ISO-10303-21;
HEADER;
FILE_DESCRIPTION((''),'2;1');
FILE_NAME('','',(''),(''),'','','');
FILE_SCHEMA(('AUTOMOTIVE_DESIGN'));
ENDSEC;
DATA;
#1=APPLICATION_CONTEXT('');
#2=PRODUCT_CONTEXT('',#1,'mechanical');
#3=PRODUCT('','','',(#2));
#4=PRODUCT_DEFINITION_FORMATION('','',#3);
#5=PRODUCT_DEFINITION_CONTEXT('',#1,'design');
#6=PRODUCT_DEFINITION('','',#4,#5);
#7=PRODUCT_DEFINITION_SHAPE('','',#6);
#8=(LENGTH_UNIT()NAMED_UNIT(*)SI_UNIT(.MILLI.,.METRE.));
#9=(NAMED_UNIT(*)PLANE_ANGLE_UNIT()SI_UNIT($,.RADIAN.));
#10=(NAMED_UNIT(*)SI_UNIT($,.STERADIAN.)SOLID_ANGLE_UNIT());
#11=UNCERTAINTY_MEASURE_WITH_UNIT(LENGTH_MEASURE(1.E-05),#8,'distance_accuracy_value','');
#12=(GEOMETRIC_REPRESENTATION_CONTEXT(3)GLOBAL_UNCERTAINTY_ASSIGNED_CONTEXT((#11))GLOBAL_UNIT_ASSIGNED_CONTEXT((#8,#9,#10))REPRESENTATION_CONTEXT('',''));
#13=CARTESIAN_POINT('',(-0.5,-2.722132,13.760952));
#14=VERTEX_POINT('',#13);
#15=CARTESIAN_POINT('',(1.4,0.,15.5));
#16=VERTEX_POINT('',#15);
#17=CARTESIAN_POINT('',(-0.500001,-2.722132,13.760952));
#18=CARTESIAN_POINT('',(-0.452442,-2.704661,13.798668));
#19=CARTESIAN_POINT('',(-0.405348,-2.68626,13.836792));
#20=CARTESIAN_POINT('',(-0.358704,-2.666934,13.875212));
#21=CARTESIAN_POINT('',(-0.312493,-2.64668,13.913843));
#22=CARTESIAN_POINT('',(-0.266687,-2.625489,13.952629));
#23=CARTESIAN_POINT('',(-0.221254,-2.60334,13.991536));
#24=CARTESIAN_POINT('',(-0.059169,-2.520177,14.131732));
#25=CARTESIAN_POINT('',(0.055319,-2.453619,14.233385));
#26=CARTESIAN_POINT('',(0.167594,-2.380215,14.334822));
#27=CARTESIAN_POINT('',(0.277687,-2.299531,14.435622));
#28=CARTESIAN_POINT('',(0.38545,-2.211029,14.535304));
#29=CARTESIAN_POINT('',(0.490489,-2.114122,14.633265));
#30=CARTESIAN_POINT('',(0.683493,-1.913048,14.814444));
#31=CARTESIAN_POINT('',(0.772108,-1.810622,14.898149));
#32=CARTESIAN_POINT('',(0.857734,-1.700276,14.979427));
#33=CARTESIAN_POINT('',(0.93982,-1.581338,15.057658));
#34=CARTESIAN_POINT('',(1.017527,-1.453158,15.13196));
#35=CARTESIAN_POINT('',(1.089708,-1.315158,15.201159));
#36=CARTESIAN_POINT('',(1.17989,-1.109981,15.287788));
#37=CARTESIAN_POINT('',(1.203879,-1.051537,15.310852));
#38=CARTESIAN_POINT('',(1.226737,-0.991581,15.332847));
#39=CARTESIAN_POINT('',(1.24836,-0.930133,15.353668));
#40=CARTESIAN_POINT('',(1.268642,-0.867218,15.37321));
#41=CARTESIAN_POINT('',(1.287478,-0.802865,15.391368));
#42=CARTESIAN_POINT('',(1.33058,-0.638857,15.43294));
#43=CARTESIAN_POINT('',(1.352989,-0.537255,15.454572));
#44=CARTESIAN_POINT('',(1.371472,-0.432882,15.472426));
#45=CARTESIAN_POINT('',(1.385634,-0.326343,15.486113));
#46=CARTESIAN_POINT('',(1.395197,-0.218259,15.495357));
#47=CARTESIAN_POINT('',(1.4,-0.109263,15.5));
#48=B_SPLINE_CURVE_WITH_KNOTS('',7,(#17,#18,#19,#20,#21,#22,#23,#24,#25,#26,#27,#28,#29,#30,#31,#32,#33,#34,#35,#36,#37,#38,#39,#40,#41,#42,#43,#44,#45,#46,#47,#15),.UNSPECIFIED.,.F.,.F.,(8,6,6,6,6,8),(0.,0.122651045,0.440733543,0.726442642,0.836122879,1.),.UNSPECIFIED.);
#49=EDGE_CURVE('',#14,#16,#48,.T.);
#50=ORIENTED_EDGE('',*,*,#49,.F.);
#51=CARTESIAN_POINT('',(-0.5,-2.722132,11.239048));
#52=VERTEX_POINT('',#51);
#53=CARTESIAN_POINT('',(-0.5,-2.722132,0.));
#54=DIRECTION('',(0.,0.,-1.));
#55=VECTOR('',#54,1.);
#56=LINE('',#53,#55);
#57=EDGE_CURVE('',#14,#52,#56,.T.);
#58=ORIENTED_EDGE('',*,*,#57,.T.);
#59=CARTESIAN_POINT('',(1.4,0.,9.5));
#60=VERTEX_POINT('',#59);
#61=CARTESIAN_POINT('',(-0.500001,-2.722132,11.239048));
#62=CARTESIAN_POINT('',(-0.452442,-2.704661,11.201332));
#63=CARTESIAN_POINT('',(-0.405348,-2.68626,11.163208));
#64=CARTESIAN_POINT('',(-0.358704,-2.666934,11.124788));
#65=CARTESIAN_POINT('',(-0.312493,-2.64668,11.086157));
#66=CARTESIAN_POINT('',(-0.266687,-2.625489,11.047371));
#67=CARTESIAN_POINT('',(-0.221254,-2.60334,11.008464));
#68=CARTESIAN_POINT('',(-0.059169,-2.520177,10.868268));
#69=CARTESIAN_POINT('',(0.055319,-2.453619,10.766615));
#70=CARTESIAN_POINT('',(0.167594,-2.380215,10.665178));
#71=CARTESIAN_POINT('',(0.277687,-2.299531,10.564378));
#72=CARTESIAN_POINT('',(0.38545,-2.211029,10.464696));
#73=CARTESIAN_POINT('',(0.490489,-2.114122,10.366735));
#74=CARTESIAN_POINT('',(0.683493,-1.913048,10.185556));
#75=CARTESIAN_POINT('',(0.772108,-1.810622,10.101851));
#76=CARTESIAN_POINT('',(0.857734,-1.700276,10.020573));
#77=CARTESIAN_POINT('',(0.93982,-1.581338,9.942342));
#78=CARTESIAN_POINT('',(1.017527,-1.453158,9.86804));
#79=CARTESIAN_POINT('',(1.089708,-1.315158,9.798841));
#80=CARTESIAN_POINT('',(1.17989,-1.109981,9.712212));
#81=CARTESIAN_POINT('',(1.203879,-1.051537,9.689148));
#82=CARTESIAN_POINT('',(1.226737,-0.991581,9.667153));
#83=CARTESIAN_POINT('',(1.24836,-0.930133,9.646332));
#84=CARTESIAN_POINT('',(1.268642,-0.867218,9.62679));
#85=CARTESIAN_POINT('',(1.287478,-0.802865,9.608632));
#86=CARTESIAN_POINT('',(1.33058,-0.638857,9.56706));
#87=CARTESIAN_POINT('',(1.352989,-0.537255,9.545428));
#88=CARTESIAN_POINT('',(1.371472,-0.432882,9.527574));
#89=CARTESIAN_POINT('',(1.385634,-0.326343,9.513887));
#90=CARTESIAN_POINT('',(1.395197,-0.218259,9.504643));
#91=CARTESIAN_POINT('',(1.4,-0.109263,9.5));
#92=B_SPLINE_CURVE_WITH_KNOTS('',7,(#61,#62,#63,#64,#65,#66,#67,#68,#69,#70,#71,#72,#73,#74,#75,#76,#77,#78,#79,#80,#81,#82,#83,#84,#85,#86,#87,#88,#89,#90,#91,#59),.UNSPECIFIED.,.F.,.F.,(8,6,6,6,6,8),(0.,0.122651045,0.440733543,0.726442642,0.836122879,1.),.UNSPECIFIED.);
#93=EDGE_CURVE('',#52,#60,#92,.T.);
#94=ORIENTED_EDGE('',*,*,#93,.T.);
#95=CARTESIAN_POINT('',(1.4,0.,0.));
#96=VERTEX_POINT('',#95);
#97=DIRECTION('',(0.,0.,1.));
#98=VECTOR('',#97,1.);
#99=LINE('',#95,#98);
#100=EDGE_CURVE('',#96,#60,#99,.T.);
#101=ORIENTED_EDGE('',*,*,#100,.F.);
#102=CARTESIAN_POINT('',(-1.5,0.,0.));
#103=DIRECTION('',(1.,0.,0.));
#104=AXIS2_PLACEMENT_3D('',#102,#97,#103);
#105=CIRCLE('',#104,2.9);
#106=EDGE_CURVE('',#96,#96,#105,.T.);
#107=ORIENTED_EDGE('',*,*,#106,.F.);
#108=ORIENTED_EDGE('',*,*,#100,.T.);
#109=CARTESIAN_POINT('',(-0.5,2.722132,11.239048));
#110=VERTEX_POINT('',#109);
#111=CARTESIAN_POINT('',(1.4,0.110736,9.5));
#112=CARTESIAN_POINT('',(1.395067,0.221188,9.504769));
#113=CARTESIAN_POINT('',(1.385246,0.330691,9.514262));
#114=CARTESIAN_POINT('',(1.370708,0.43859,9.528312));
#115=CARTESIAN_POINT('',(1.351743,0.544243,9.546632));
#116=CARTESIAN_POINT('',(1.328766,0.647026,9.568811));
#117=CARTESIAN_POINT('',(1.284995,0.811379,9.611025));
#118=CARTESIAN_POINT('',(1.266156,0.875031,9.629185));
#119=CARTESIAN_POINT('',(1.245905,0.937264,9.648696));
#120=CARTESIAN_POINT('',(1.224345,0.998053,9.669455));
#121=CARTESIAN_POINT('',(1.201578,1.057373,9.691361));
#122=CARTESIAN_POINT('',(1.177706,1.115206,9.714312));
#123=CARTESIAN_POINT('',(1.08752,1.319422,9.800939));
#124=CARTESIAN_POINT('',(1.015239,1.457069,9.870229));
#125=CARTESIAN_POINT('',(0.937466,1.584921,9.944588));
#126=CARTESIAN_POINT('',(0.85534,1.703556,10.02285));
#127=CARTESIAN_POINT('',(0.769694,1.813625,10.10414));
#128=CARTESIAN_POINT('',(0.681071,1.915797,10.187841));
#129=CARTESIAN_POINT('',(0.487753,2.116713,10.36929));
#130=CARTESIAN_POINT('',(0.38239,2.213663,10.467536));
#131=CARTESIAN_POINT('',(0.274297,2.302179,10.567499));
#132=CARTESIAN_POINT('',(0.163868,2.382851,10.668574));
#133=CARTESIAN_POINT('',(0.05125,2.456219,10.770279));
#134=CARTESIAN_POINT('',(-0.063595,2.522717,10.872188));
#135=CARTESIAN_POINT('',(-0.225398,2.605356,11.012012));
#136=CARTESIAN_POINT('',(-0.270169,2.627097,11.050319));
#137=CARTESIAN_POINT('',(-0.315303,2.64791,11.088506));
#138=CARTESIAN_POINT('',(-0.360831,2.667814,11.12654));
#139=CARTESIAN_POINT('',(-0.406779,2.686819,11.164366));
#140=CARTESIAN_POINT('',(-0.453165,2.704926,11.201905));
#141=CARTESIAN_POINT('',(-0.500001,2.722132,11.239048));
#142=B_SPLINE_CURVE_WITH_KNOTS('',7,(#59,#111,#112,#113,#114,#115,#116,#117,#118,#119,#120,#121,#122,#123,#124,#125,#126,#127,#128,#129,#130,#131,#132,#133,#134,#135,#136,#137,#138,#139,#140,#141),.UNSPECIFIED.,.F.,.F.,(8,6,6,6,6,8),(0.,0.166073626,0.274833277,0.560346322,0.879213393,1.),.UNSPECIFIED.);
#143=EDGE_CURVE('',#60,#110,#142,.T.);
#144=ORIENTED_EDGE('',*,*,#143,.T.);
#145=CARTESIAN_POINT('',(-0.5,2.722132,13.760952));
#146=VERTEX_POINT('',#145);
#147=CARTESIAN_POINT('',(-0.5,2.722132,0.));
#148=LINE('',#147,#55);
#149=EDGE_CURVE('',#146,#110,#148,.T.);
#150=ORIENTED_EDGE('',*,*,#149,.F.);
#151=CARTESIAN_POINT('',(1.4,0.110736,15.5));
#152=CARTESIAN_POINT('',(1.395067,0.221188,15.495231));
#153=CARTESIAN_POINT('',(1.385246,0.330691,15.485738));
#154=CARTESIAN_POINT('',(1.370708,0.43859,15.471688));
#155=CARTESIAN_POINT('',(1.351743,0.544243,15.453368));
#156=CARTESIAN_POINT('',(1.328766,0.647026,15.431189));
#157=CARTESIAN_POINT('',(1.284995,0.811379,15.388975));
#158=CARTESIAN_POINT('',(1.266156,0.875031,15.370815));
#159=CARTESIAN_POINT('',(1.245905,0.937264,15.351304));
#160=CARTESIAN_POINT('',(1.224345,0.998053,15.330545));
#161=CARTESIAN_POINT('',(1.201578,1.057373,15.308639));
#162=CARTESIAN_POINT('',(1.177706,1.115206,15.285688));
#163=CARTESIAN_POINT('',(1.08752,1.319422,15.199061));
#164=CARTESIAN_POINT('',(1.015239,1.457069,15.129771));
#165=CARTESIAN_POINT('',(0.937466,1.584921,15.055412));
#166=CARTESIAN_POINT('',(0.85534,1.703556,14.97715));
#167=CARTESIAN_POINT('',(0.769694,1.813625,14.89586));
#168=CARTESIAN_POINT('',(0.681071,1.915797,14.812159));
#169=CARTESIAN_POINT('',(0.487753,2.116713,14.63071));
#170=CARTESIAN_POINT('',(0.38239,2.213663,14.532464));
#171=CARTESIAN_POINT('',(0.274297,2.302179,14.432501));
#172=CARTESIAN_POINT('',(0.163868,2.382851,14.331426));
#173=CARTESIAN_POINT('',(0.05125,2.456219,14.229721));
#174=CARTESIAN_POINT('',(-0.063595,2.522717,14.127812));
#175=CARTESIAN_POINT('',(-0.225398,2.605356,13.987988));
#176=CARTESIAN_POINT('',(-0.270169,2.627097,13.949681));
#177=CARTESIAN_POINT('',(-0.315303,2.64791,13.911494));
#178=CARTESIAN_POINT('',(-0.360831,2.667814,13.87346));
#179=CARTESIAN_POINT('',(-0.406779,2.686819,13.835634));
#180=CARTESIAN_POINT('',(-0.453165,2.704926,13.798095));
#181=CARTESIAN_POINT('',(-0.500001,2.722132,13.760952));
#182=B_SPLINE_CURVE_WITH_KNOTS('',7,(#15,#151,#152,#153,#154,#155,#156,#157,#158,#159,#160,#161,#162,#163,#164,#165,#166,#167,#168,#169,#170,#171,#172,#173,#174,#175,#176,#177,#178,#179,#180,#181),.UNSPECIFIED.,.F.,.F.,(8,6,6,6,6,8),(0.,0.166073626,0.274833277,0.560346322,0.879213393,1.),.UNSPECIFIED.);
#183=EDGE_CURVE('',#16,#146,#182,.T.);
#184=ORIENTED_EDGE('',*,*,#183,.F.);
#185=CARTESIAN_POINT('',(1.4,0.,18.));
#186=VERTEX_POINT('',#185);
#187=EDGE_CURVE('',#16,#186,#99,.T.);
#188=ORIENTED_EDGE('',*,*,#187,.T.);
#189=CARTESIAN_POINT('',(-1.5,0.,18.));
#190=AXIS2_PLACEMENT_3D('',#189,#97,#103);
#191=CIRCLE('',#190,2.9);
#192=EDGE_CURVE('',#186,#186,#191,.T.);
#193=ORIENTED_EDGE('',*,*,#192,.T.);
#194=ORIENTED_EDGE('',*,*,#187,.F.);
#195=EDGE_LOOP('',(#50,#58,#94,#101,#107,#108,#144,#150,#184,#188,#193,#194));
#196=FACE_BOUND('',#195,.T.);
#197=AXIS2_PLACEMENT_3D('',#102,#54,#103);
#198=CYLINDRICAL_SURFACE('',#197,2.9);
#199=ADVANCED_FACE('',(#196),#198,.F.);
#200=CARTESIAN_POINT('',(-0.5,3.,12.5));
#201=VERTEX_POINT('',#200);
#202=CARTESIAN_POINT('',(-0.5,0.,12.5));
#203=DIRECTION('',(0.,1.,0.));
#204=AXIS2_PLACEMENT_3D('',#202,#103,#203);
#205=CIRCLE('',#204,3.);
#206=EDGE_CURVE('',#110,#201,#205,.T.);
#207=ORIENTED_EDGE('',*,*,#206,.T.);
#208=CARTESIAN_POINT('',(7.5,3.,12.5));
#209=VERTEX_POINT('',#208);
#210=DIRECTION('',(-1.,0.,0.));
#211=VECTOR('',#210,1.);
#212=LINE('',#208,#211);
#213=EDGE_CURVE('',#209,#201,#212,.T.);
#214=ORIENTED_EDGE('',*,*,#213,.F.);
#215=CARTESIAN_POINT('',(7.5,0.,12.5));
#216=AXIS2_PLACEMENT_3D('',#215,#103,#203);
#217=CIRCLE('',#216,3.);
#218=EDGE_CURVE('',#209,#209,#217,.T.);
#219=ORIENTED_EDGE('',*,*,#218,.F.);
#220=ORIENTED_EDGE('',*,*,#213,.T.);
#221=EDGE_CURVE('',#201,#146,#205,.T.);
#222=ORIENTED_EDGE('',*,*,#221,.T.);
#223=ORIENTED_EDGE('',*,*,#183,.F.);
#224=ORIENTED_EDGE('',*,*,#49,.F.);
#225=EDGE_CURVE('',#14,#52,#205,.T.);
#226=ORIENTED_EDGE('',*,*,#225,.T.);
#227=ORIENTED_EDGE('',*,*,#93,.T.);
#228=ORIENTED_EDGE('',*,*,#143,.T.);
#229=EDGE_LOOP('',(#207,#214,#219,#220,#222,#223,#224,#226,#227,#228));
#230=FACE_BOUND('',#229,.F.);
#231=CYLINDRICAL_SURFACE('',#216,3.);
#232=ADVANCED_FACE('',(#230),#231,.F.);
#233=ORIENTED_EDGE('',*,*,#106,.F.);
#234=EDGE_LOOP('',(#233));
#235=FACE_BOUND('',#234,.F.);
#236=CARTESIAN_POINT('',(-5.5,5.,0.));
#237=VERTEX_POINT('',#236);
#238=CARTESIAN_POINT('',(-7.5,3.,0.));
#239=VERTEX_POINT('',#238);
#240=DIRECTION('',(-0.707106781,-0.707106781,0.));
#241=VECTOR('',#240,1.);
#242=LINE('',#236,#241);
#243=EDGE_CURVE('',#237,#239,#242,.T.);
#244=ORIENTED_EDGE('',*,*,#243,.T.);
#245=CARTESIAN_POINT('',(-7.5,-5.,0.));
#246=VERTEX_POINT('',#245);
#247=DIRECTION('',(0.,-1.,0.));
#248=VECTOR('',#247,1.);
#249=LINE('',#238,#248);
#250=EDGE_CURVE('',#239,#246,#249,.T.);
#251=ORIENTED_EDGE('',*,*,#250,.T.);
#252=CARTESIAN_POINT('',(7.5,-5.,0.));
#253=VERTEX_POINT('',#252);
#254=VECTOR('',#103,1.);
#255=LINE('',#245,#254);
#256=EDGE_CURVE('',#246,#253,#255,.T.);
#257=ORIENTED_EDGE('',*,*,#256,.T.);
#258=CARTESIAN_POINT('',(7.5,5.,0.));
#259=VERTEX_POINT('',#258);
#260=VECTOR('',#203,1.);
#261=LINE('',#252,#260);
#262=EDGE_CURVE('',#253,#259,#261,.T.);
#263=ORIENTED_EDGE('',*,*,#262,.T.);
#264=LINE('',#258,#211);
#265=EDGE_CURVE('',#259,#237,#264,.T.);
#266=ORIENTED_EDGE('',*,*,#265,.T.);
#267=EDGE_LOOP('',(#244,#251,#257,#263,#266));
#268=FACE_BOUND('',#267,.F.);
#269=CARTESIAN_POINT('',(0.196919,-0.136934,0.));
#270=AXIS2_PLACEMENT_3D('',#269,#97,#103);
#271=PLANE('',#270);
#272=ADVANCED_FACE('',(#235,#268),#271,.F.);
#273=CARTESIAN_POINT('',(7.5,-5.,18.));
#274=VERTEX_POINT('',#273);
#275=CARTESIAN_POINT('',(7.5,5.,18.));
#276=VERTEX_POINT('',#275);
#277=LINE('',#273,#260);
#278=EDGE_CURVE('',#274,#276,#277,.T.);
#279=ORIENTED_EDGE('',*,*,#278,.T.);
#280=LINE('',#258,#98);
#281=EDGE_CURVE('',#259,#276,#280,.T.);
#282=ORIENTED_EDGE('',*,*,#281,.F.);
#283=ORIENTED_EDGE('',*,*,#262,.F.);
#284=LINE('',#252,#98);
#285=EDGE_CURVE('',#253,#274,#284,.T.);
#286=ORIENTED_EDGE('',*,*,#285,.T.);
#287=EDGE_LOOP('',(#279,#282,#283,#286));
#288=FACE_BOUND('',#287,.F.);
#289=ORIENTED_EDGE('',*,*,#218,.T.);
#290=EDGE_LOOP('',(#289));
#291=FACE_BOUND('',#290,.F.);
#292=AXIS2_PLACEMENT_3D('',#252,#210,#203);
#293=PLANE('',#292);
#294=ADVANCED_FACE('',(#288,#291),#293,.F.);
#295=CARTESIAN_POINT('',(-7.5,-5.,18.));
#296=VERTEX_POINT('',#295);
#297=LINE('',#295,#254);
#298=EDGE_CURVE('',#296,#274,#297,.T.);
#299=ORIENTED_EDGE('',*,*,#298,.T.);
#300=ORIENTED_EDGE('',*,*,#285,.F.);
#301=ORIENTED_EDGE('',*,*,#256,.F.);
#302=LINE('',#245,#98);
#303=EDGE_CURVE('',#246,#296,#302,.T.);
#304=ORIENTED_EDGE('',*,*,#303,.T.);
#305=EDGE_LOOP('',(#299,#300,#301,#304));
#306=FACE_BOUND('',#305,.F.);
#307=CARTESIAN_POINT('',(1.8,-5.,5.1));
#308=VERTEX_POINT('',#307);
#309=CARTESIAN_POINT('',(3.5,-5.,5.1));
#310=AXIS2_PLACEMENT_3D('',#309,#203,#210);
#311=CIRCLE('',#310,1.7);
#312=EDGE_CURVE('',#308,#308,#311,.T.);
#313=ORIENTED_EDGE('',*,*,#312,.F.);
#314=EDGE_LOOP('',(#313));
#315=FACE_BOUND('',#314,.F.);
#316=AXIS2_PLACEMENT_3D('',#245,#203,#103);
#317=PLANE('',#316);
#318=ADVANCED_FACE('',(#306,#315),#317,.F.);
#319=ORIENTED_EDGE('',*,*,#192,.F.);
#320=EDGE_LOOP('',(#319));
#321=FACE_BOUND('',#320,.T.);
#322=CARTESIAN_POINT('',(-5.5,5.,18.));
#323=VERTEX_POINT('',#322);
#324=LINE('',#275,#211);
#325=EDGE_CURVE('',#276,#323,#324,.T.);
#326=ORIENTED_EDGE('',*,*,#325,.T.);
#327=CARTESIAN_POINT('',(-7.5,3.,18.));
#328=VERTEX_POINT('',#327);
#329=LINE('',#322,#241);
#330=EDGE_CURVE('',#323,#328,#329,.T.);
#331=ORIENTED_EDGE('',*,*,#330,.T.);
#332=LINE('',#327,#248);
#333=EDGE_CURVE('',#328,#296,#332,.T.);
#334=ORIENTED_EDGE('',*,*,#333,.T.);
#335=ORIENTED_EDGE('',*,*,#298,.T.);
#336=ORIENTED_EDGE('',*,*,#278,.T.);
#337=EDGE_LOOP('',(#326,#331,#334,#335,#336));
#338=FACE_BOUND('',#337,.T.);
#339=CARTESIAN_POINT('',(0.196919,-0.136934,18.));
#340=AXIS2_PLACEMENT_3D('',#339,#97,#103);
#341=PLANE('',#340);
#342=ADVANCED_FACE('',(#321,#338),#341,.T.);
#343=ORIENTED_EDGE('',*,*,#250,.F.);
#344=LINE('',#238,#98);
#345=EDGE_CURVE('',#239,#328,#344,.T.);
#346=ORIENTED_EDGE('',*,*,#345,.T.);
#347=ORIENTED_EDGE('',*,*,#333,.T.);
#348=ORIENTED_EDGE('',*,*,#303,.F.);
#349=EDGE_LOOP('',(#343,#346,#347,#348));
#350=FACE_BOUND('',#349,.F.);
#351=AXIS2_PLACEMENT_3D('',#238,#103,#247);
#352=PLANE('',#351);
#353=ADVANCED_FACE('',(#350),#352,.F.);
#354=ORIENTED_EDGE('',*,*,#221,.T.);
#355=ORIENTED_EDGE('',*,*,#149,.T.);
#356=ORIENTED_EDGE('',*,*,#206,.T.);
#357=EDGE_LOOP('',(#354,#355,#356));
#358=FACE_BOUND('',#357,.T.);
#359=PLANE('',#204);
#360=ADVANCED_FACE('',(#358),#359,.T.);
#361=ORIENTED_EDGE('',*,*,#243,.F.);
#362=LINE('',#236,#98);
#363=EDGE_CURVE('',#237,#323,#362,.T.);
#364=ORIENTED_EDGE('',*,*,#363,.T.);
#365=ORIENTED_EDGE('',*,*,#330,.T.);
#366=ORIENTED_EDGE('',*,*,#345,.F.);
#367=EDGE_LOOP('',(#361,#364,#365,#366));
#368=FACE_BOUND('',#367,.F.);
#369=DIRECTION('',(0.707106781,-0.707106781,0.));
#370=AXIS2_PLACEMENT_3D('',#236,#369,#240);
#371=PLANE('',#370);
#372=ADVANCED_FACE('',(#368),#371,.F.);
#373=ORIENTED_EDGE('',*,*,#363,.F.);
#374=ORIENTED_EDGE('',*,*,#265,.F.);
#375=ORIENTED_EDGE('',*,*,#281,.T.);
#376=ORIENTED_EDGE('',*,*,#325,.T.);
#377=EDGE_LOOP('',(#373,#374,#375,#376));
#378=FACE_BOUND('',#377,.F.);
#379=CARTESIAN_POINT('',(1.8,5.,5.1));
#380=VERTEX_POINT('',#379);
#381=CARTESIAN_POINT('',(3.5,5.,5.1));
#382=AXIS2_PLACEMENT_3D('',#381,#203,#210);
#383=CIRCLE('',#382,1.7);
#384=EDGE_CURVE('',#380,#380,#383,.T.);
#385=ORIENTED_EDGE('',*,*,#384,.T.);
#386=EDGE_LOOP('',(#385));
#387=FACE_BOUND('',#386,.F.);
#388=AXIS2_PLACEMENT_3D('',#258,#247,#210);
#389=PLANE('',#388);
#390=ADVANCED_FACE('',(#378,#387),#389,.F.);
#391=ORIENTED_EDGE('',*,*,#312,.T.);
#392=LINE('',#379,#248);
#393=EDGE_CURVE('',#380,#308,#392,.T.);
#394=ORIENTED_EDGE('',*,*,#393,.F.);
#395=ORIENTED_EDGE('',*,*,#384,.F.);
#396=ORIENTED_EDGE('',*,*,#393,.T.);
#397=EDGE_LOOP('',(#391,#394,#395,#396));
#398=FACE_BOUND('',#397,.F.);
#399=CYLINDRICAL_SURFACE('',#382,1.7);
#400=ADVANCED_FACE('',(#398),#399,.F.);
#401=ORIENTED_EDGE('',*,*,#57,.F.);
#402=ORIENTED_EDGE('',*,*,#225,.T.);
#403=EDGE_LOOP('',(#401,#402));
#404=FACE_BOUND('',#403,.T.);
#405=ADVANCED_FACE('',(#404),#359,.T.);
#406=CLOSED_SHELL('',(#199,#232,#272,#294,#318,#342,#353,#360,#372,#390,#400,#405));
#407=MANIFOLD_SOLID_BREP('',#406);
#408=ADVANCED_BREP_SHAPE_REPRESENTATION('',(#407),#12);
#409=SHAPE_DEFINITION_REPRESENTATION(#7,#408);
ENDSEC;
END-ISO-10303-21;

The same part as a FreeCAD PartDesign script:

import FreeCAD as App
import Part
import Sketcher
from FreeCAD import Vector
Q = App.Units.Quantity

doc = App.newDocument("Part")
body = doc.addObject("PartDesign::Body", "Body")

sketch1 = body.newObject("Sketcher::SketchObject", "Sketch")
sketch1.AttachmentSupport = (doc.getObject("XY_Plane"), [""])
sketch1.MapMode = "FlatFace"
sketch1.addGeometry([
    Part.LineSegment(Vector(7.5, -5, 0), Vector(7.5, 5, 0)),
    Part.LineSegment(Vector(7.5, 5, 0), Vector(-5.5, 5, 0)),
    Part.LineSegment(Vector(-5.5, 5, 0), Vector(-7.5, 3, 0)),
    Part.LineSegment(Vector(-7.5, 3, 0), Vector(-7.5, -5, 0)),
    Part.LineSegment(Vector(-7.5, -5, 0), Vector(7.5, -5, 0)),
    Part.Circle(Vector(-1.5, 0, 0), Vector(0, 0, 1), 2.9),
], False)
sketch1.addConstraint([
    Sketcher.Constraint("Coincident", 0, 2, 1, 1),
    Sketcher.Constraint("Coincident", 1, 2, 2, 1),
    Sketcher.Constraint("Coincident", 2, 2, 3, 1),
    Sketcher.Constraint("Coincident", 3, 2, 4, 1),
    Sketcher.Constraint("Coincident", 4, 2, 0, 1),
    Sketcher.Constraint("Vertical", 0),
    Sketcher.Constraint("Horizontal", 1),
    Sketcher.Constraint("Vertical", 3),
    Sketcher.Constraint("Horizontal", 4),
    Sketcher.Constraint("Symmetric", 0, 2, 3, 2, -1, 1),
    Sketcher.Constraint("PointOnObject", 5, 3, -1),
    Sketcher.Constraint("Diameter", 5, Q("5.8 mm")),
    Sketcher.Constraint("DistanceX", 1, 2, 1, 1, Q("13 mm")),
    Sketcher.Constraint("DistanceX", 4, 1, 4, 2, Q("15 mm")),
    Sketcher.Constraint("DistanceY", 0, 1, 0, 2, Q("10 mm")),
    Sketcher.Constraint("DistanceY", 3, 2, 3, 1, Q("8 mm")),
    Sketcher.Constraint("DistanceX", 5, 3, 0, 2, Q("9 mm")),
])
pad1 = body.newObject("PartDesign::Pad", "Pad")
pad1.Profile = sketch1
pad1.Length = 18

sketch2 = body.newObject("Sketcher::SketchObject", "Sketch001")
sketch2.AttachmentSupport = (doc.getObject("XZ_Plane"), [""])
sketch2.MapMode = "FlatFace"
sketch2.AttachmentOffset = App.Placement(Vector(0, 0, -5), App.Rotation())
sketch2.addGeometry(Part.Circle(Vector(3.5, 5.1, 0), Vector(0, 0, 1), 1.7), False)
sketch2.addConstraint([
    Sketcher.Constraint("Diameter", 0, Q("3.4 mm")),
    Sketcher.Constraint("DistanceX", -1, 1, 0, 3, Q("3.5 mm")),
    Sketcher.Constraint("DistanceY", -1, 1, 0, 3, Q("5.1 mm")),
])
pocket1 = body.newObject("PartDesign::Pocket", "Pocket")
pocket1.Profile = sketch2
pocket1.Type = "ThroughAll"
pocket1.Reversed = True

sketch3 = body.newObject("Sketcher::SketchObject", "Sketch002")
sketch3.AttachmentSupport = (doc.getObject("YZ_Plane"), [""])
sketch3.MapMode = "FlatFace"
sketch3.AttachmentOffset = App.Placement(Vector(0, 0, 7.5), App.Rotation())
sketch3.addGeometry(Part.Circle(Vector(0, 12.5, 0), Vector(0, 0, 1), 3), False)
sketch3.addConstraint([
    Sketcher.Constraint("PointOnObject", 0, 3, -2),
    Sketcher.Constraint("Diameter", 0, Q("6 mm")),
    Sketcher.Constraint("DistanceY", -1, 1, 0, 3, Q("12.5 mm")),
])
pocket2 = body.newObject("PartDesign::Pocket", "Pocket001")
pocket2.Profile = sketch3
pocket2.Length = 8

doc.recompute()
